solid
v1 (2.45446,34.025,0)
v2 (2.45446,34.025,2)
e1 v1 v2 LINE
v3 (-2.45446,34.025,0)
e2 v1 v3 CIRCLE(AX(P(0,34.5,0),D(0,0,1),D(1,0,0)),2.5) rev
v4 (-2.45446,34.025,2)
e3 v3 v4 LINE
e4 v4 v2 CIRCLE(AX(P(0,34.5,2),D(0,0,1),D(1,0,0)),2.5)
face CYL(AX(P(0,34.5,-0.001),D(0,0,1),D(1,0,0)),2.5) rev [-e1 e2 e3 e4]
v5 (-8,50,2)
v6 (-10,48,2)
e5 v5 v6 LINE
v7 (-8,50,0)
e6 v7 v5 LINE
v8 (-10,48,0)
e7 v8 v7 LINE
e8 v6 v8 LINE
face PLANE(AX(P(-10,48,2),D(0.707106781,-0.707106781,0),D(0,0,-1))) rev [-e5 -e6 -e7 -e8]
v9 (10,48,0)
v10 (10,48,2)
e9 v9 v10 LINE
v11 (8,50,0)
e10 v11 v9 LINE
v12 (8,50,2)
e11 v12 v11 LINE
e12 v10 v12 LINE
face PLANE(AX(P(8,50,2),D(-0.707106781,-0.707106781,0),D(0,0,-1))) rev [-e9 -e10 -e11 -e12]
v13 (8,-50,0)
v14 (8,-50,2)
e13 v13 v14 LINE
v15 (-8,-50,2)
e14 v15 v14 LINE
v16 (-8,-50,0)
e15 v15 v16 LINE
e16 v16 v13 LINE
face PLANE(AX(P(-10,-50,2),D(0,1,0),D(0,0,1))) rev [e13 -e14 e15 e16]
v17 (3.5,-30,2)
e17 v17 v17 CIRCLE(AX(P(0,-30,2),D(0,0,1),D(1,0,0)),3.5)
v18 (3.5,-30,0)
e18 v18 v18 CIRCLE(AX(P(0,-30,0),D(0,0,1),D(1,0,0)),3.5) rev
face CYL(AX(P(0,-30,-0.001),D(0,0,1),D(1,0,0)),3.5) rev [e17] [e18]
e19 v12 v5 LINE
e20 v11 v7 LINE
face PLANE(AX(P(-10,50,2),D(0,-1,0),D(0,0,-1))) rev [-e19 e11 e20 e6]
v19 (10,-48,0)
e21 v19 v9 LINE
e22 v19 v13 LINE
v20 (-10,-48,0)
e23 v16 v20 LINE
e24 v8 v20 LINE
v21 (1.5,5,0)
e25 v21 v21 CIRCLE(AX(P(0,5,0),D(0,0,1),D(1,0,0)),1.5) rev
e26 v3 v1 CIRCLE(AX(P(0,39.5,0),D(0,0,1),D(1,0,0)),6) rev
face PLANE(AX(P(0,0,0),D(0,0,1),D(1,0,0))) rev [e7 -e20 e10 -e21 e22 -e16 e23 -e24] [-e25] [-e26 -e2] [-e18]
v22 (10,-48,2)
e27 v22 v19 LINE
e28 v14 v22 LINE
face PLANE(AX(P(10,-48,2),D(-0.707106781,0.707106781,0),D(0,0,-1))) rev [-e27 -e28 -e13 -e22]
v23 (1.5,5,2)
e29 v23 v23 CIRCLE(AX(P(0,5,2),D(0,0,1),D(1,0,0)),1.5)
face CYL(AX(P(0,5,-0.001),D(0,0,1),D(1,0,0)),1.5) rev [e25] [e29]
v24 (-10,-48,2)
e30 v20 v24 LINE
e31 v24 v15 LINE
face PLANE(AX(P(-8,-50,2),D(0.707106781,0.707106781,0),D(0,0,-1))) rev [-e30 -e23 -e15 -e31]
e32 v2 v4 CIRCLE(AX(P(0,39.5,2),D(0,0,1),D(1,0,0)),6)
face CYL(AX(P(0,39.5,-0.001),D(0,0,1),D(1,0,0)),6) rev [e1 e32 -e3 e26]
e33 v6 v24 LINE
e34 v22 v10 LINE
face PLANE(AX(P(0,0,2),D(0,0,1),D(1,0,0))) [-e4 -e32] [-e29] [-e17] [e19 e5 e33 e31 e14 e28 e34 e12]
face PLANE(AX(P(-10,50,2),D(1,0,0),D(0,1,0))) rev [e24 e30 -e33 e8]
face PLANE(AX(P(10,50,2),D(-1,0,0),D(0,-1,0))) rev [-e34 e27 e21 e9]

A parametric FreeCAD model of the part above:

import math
import FreeCAD as App
import Part
import Sketcher

V = App.Vector
Q = App.Units.Quantity


def edges_at(feature, points):
    """Names of the edges that pass closest to the given points."""
    edges = feature.Shape.Edges
    near = lambda p: min(range(len(edges)), key=lambda i: edges[i].distToShape(Part.Vertex(*p))[0])
    return sorted({f"Edge{near(p) + 1}" for p in points})


def add_polygon(sketch, points):
    """Adds a closed chain of lines whose ends are joined by coincident constraints."""
    first, n = sketch.GeometryCount, len(points)
    for a, b in zip(points, points[1:] + points[:1]):
        sketch.addGeometry(Part.LineSegment(App.Vector(*a, 0), App.Vector(*b, 0)), False)
    for i in range(n):
        sketch.addConstraint(Sketcher.Constraint("Coincident", first + i, 2, first + (i + 1) % n, 1))

doc = App.newDocument("Part")
body = doc.addObject("PartDesign::Body", "Body")

sketch1 = doc.addObject("Sketcher::SketchObject", "Sketch")
body.addObject(sketch1)
sketch1.AttachmentSupport = (doc.XY_Plane, [""])
sketch1.MapMode = "FlatFace"
add_polygon(sketch1, [(-10, 50), (-10, -50), (10, -50), (10, 50)])
sketch1.addConstraint([
    Sketcher.Constraint("Vertical", 0),
    Sketcher.Constraint("Horizontal", 1),
    Sketcher.Constraint("Vertical", 2),
    Sketcher.Constraint("Horizontal", 3),
    Sketcher.Constraint("Symmetric", 0, 2, 2, 2, -1, 1),
    Sketcher.Constraint("DistanceX", 1, 1, 1, 2, Q("20 mm")),
    Sketcher.Constraint("DistanceY", 0, 2, 0, 1, Q("100 mm")),
])
pad1 = doc.addObject("PartDesign::Pad", "Pad")
body.addObject(pad1)
pad1.Profile = sketch1
pad1.Length = 2

sketch2 = doc.addObject("Sketcher::SketchObject", "Sketch001")
body.addObject(sketch2)
sketch2.AttachmentSupport = (doc.XY_Plane, [""])
sketch2.MapMode = "FlatFace"
sketch2.AttachmentOffset = App.Placement(V(0, 0, 2), App.Rotation())
sketch2.addGeometry(Part.Circle(V(0, 5, 0), V(0, 0, 1), 1.5), False)
sketch2.addConstraint([
    Sketcher.Constraint("PointOnObject", 0, 3, -2),
    Sketcher.Constraint("Diameter", 0, Q("3 mm")),
    Sketcher.Constraint("DistanceY", -1, 1, 0, 3, Q("5 mm")),
])
pocket1 = doc.addObject("PartDesign::Pocket", "Pocket")
body.addObject(pocket1)
pocket1.Profile = sketch2
pocket1.Type = "UpToFirst"

sketch3 = doc.addObject("Sketcher::SketchObject", "Sketch002")
body.addObject(sketch3)
sketch3.AttachmentSupport = (doc.XY_Plane, [""])
sketch3.MapMode = "FlatFace"
sketch3.AttachmentOffset = App.Placement(V(0, 0, 2), App.Rotation())
sketch3.addGeometry(Part.Circle(V(0, -30, 0), V(0, 0, 1), 3.5), False)
sketch3.addConstraint([
    Sketcher.Constraint("PointOnObject", 0, 3, -2),
    Sketcher.Constraint("Diameter", 0, Q("7 mm")),
    Sketcher.Constraint("DistanceY", 0, 3, -1, 1, Q("30 mm")),
])
pocket2 = doc.addObject("PartDesign::Pocket", "Pocket001")
body.addObject(pocket2)
pocket2.Profile = sketch3
pocket2.Type = "UpToFirst"

sketch4 = doc.addObject("Sketcher::SketchObject", "Sketch003")
body.addObject(sketch4)
sketch4.AttachmentSupport = (doc.XY_Plane, [""])
sketch4.MapMode = "FlatFace"
sketch4.AttachmentOffset = App.Placement(V(0, 0, 2), App.Rotation())
sketch4.addGeometry([
    Part.ArcOfCircle(Part.Circle(V(0, 39.5, 0), V(0, 0, 1), 6), math.radians(-66), math.radians(246)),
    Part.ArcOfCircle(Part.Circle(V(0, 34.5, 0), V(0, 0, 1), 2.5), math.radians(-169), math.radians(-11)),
], False)
sketch4.addConstraint([
    Sketcher.Constraint("Coincident", 0, 1, 1, 2),
    Sketcher.Constraint("Coincident", 1, 1, 0, 2),
    Sketcher.Constraint("Symmetric", 0, 1, 1, 1, -2),
    Sketcher.Constraint("Radius", 0, Q("6 mm")),
    Sketcher.Constraint("Radius", 1, Q("2.5 mm")),
    Sketcher.Constraint("DistanceY", 1, 3, 0, 3, Q("5 mm")),
    Sketcher.Constraint("DistanceY", -1, 1, 0, 3, Q("39.5 mm")),
])
pocket3 = doc.addObject("PartDesign::Pocket", "Pocket002")
body.addObject(pocket3)
pocket3.Profile = sketch4
pocket3.Type = "UpToFirst"
doc.recompute()

chamfer = doc.addObject("PartDesign::Chamfer", "Chamfer")
body.addObject(chamfer)
chamfer.Base = (pocket3, edges_at(pocket3, [
    (10, -50, 1),
    (-10, -50, 1),
    (-10, 50, 1),
    (10, 50, 1),
]))
chamfer.Size = 2

doc.recompute()
